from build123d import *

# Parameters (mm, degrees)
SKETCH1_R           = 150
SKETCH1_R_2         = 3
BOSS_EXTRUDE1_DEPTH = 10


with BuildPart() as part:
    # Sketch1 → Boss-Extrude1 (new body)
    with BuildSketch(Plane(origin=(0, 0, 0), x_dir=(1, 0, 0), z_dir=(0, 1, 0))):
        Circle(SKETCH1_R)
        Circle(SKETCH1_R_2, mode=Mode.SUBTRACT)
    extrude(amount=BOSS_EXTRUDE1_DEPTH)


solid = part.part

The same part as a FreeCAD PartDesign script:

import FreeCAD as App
import Part
import Sketcher

V = App.Vector
Q = App.Units.Quantity

doc = App.newDocument("Part")
body = doc.addObject("PartDesign::Body", "Body")

# Sketch on XZ plane
sketch1 = body.newObject("Sketcher::SketchObject", "Sketch")
sketch1.AttachmentSupport = (doc.getObject("XZ_Plane"), [""])
sketch1.MapMode = "FlatFace"
sketch1.addGeometry(Part.Circle(V(0, 0, 0), V(0, 0, 1), 150), False)
sketch1.addGeometry(Part.Circle(V(0, 0, 0), V(0, 0, 1), 3), False)
sketch1.addConstraint(Sketcher.Constraint("Coincident", 0, 3, -1, 1))
sketch1.addConstraint(Sketcher.Constraint("Coincident", 1, 3, -1, 1))
sketch1.addConstraint(Sketcher.Constraint("Diameter", 0, Q("300 mm")))
sketch1.addConstraint(Sketcher.Constraint("Diameter", 1, Q("6 mm")))
pad1 = body.newObject("PartDesign::Pad", "Pad")
pad1.Profile = sketch1
pad1.Length = 10
pad1.Reversed = True

doc.recompute()
